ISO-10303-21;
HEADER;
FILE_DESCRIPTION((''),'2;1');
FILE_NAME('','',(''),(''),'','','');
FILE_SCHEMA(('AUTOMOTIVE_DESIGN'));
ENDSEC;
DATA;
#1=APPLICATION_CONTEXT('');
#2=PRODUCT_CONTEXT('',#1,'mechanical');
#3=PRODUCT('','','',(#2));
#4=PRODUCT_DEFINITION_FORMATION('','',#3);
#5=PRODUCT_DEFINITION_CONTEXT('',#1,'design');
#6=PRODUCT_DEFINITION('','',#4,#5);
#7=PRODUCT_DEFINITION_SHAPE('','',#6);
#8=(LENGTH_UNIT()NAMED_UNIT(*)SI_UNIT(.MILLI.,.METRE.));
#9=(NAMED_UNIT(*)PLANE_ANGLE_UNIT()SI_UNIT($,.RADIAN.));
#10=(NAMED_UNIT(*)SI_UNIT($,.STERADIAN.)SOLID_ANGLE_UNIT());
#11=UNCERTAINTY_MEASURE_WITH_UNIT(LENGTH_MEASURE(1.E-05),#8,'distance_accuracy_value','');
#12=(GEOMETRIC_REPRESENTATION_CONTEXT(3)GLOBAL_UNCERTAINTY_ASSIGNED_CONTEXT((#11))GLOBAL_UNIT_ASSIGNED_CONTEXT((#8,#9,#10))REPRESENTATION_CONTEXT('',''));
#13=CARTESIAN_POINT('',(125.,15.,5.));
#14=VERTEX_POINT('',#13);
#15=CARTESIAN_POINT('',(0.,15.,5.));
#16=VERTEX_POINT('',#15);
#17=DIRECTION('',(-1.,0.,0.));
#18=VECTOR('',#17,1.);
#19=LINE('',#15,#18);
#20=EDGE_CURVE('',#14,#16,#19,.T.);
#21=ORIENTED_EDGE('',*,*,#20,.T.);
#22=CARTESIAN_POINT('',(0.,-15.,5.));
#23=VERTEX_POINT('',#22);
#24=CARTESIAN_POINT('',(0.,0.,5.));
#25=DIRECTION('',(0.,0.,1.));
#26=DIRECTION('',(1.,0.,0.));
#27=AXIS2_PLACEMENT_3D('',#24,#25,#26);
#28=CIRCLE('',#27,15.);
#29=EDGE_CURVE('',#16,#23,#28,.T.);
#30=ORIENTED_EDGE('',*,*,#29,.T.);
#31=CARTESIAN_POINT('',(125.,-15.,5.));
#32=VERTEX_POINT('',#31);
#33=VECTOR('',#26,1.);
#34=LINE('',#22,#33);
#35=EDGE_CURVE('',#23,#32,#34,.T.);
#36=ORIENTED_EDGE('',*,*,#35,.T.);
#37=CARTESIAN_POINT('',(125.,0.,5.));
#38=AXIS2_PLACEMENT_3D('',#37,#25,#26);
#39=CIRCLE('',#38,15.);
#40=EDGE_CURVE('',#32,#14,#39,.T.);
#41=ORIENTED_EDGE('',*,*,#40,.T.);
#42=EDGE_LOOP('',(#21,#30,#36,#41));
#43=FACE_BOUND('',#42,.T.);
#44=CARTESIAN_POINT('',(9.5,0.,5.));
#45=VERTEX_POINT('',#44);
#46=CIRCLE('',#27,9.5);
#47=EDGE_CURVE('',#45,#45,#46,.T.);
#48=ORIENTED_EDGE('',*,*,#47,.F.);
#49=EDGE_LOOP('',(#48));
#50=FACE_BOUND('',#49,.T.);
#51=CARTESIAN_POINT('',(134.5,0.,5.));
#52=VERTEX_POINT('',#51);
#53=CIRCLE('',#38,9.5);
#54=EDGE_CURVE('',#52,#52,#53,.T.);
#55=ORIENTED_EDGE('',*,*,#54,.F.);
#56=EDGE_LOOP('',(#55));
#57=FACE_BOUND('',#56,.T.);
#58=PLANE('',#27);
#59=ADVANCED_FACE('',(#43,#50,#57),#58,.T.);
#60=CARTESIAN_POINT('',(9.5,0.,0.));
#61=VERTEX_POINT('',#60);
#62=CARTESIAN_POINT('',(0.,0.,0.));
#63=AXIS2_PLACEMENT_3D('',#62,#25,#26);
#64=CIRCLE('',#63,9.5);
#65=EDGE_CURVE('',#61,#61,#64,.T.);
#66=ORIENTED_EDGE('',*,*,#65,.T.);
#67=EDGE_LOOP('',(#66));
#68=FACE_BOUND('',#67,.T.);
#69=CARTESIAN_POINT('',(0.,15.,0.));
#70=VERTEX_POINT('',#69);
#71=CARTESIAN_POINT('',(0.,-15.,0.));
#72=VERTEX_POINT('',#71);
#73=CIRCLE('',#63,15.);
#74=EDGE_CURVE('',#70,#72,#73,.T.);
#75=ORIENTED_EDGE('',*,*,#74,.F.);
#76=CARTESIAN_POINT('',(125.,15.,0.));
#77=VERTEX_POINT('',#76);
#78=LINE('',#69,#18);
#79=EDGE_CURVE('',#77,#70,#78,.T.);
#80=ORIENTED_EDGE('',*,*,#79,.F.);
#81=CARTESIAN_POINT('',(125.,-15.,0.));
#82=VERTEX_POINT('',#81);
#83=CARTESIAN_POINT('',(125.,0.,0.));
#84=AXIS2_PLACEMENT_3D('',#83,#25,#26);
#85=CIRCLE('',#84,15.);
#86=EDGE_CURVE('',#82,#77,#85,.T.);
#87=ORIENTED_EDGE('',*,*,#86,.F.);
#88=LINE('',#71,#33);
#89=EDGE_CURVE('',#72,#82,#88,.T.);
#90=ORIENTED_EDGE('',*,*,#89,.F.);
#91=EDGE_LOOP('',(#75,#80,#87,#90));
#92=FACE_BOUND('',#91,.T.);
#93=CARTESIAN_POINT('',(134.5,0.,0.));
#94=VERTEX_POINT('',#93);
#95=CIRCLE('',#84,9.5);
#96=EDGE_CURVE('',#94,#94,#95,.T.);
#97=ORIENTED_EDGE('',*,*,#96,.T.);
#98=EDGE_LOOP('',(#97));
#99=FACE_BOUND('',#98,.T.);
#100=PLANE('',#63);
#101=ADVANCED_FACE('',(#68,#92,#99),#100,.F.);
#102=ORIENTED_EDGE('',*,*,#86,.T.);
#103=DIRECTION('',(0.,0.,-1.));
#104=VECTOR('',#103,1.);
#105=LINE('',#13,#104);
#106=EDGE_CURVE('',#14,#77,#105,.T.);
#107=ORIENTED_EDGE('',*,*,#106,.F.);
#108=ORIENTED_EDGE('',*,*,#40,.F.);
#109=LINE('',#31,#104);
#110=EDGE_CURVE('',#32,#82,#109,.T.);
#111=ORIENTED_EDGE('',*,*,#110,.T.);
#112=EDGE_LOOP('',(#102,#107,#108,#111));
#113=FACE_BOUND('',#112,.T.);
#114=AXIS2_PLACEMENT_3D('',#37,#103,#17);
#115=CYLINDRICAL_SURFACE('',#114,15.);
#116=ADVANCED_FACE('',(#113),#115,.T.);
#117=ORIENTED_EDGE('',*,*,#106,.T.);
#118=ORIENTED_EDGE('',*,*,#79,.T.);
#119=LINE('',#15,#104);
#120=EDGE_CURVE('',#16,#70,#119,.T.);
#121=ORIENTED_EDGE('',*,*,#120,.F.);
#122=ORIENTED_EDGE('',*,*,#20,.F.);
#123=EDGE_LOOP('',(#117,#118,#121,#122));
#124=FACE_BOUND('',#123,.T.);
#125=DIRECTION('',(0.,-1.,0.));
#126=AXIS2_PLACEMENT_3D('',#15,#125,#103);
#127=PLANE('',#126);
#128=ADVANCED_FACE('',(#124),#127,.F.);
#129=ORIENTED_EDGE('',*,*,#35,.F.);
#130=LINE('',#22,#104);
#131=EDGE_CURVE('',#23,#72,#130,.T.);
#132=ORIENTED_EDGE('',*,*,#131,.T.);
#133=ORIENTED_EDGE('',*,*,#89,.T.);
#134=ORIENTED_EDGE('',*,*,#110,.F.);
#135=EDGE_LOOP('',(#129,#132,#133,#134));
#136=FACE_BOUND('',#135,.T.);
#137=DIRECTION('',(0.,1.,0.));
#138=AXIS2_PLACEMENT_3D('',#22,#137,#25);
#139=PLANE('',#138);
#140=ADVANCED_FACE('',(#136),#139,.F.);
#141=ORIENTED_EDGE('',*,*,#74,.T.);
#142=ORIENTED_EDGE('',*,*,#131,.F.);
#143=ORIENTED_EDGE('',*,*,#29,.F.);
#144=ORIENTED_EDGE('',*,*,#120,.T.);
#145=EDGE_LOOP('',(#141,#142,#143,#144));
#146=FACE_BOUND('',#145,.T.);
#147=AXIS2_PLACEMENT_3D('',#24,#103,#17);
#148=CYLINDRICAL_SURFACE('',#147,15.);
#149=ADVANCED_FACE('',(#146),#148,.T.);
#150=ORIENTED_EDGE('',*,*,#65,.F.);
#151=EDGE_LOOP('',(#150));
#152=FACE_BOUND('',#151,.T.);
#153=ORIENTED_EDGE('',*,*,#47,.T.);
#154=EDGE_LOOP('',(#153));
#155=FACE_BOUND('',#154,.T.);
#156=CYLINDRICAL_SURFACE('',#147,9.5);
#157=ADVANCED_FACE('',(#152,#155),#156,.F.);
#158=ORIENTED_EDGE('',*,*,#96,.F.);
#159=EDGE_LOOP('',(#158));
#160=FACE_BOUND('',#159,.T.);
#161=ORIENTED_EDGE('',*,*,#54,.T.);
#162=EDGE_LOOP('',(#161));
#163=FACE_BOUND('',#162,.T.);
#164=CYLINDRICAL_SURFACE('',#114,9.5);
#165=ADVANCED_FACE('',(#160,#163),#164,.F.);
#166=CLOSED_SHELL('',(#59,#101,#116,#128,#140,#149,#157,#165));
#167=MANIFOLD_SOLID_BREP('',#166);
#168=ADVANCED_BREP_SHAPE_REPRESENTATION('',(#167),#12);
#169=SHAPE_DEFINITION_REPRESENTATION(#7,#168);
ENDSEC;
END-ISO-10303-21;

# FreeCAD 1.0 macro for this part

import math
import FreeCAD as App
import Part
import Sketcher
Q = App.Units.Quantity

doc = App.newDocument("Part")
params = doc.addObject("Spreadsheet::Sheet", "Params")
for row, (alias, value) in enumerate([
    ("sketch1_diameter", "19 mm"),
    ("sketch1_radius", "15 mm"),
    ("sketch1_width", "125 mm"),
    ("pad1_length", "5 mm"),
], start=1):
    params.set(f"A{row}", alias)
    params.set(f"B{row}", "=" + value)
    params.setAlias(f"B{row}", alias)

body = doc.addObject("PartDesign::Body", "Body")

sketch1 = body.newObject("Sketcher::SketchObject", "Sketch")
sketch1.AttachmentSupport = (doc.getObject("XY_Plane"), [""])
sketch1.MapMode = "FlatFace"
sketch1.addGeometry(Part.LineSegment(App.Vector(125, 15, 0), App.Vector(0, 15, 0)), False)
sketch1.addGeometry(Part.ArcOfCircle(Part.Circle(App.Vector(0, 0, 0), App.Vector(0, 0, 1), 15), math.radians(90), math.radians(270)), False)
sketch1.addGeometry(Part.LineSegment(App.Vector(0, -15, 0), App.Vector(125, -15, 0)), False)
sketch1.addGeometry(Part.ArcOfCircle(Part.Circle(App.Vector(125, 0, 0), App.Vector(0, 0, 1), 15), math.radians(-90), math.radians(90)), False)
sketch1.addGeometry(Part.Circle(App.Vector(125, 0, 0), App.Vector(0, 0, 1), 10), False)
sketch1.addGeometry(Part.Circle(App.Vector(0, 0, 0), App.Vector(0, 0, 1), 10), False)
sketch1.addConstraint(Sketcher.Constraint("Tangent", 0, 2, 1, 1))
sketch1.addConstraint(Sketcher.Constraint("Tangent", 1, 2, 2, 1))
sketch1.addConstraint(Sketcher.Constraint("Tangent", 2, 2, 3, 1))
sketch1.addConstraint(Sketcher.Constraint("Tangent", 3, 2, 0, 1))
sketch1.addConstraint(Sketcher.Constraint("Horizontal", 0))
sketch1.addConstraint(Sketcher.Constraint("Horizontal", 2))
sketch1.addConstraint(Sketcher.Constraint("Coincident", 1, 3, -1, 1))
sketch1.addConstraint(Sketcher.Constraint("Coincident", 5, 3, -1, 1))
sketch1.addConstraint(Sketcher.Constraint("Coincident", 4, 3, 3, 3))
sketch1.addConstraint(Sketcher.Constraint("Equal", 4, 5))
sketch1.addConstraint(Sketcher.Constraint("Diameter", 4, Q("19 mm")))
sketch1.addConstraint(Sketcher.Constraint("Radius", 1, Q("15 mm")))
sketch1.addConstraint(Sketcher.Constraint("DistanceX", 0, 2, 0, 1, Q("125 mm")))
sketch1.setExpression("Constraints[10]", "Params.sketch1_diameter")
sketch1.setExpression("Constraints[11]", "Params.sketch1_radius")
sketch1.setExpression("Constraints[12]", "Params.sketch1_width")
pad1 = body.newObject("PartDesign::Pad", "Pad")
pad1.Profile = sketch1
pad1.setExpression("Length", "Params.pad1_length")

doc.recompute()
